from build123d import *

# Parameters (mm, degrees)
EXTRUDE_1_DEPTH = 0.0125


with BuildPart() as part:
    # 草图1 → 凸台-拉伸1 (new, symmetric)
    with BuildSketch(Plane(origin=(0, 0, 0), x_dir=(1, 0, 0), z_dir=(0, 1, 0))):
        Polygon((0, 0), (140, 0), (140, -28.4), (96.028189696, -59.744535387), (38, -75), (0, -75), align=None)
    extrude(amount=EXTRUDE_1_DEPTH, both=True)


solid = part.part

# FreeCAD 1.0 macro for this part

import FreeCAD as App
import Part
import Sketcher


def add_polygon(sketch, points):
    """Adds a closed chain of lines whose ends are joined by coincident constraints."""
    first, n = sketch.GeometryCount, len(points)
    for a, b in zip(points, points[1:] + points[:1]):
        sketch.addGeometry(Part.LineSegment(App.Vector(*a, 0), App.Vector(*b, 0)), False)
    for i in range(n):
        sketch.addConstraint(Sketcher.Constraint("Coincident", first + i, 2, first + (i + 1) % n, 1))

doc = App.newDocument("Part")
body = doc.addObject("PartDesign::Body", "Body")

# Sketch on XZ plane
sketch1 = doc.addObject("Sketcher::SketchObject", "Sketch")
body.addObject(sketch1)
sketch1.AttachmentSupport = (doc.XZ_Plane, [""])
sketch1.MapMode = "FlatFace"
add_polygon(sketch1, [(140, 0), (0, 0), (0, 75), (38, 75), (96, 60), (140, 28)])  # lines 0-5
sketch1.addConstraint([
    Sketcher.Constraint("Horizontal", 0),
    Sketcher.Constraint("Vertical", 1),
    Sketcher.Constraint("Horizontal", 2),
    Sketcher.Constraint("Vertical", 5),
    Sketcher.Constraint("Coincident", 0, 2, -1, 1),
    Sketcher.Constraint("DistanceX", 0, 2, 0, 1, 140.0),
    Sketcher.Constraint("DistanceX", 2, 1, 2, 2, 38.0),
    Sketcher.Constraint("DistanceY", 1, 1, 1, 2, 75.0),
    Sketcher.Constraint("Distance", 3, 60.0),
    Sketcher.Constraint("Distance", 4, 54.0),
    Sketcher.Constraint("DistanceY", 5, 2, 5, 1, 28.4),
])
pad1 = doc.addObject("PartDesign::Pad", "Pad")
body.addObject(pad1)
pad1.Profile = sketch1
pad1.Length = 0.025
pad1.Midplane = True

doc.recompute()
